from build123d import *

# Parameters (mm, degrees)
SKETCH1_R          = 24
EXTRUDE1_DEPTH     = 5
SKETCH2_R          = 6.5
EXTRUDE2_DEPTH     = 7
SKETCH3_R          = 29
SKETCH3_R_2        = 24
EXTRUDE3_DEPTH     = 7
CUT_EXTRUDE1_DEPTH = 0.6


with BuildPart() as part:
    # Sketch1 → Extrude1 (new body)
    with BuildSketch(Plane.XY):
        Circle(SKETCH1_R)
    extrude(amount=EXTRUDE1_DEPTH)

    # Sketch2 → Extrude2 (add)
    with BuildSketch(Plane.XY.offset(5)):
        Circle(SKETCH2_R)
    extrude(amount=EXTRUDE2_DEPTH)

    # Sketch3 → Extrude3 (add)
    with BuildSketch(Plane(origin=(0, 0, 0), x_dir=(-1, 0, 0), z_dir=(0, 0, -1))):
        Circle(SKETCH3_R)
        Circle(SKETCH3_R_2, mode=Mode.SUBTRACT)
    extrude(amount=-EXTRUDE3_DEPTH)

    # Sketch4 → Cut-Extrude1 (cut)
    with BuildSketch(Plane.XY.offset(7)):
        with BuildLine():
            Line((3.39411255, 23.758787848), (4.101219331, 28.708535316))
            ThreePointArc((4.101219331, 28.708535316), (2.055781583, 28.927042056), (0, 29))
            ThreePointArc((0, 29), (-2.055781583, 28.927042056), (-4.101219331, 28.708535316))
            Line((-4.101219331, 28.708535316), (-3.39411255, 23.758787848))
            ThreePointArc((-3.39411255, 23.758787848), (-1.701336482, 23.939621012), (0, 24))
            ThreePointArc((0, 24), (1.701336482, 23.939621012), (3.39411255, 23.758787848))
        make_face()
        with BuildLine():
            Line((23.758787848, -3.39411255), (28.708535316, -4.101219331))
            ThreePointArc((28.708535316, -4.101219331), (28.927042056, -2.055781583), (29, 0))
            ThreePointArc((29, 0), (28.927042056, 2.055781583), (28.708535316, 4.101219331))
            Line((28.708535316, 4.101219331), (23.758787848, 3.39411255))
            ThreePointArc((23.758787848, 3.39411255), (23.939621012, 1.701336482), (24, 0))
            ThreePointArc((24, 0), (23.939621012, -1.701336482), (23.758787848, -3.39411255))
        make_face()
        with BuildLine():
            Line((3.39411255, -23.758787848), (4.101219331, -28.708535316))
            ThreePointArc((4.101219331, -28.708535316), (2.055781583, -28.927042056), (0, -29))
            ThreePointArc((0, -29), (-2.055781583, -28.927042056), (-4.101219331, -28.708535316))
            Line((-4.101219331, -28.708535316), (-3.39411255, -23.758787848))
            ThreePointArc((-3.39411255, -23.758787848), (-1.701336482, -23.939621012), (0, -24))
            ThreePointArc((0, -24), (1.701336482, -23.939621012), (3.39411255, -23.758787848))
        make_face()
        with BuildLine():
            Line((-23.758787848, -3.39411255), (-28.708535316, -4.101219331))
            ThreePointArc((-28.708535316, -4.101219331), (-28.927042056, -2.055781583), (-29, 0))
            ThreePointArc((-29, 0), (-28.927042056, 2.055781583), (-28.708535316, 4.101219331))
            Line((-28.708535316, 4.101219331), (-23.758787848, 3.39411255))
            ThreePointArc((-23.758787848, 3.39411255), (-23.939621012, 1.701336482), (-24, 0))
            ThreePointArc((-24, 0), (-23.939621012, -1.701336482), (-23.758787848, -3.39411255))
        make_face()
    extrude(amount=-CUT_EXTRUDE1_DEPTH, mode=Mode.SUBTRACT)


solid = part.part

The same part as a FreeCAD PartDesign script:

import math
import FreeCAD as App
import Part
import Sketcher
Q = App.Units.Quantity

doc = App.newDocument("Part")
params = doc.addObject("Spreadsheet::Sheet", "Params")
for row, (alias, value) in enumerate([
    ("sketch1_diameter", "48 mm"),
    ("pad1_length", "5 mm"),
    ("sketch2_diameter", "13 mm"),
    ("pad2_length", "7 mm"),
    ("sketch3_diameter", "58 mm"),
    ("sketch3_diameter2", "48 mm"),
    ("pad3_length", "7 mm"),
    ("sketch4_radius", "29 mm"),
    ("sketch4_radius2", "24 mm"),
    ("pocket1_length", "0.6 mm"),
], start=1):
    params.set(f"A{row}", alias)
    params.set(f"B{row}", "=" + value)
    params.setAlias(f"B{row}", alias)

body = doc.addObject("PartDesign::Body", "Body")

# Sketch on XY plane
sketch1 = doc.addObject("Sketcher::SketchObject", "Sketch")
body.addObject(sketch1)
sketch1.AttachmentSupport = (doc.XY_Plane, [""])
sketch1.MapMode = "FlatFace"
sketch1.addGeometry(Part.Circle(App.Vector(0, 0, 0), App.Vector(0, 0, 1), 24), False)
sketch1.addConstraint([
    Sketcher.Constraint("Coincident", 0, 3, -1, 1),
    Sketcher.Constraint("Diameter", 0, Q("48 mm")),
])
sketch1.setExpression("Constraints[1]", "Params.sketch1_diameter")
pad1 = doc.addObject("PartDesign::Pad", "Pad")
body.addObject(pad1)
pad1.Profile = sketch1
pad1.setExpression("Length", "Params.pad1_length")

# Sketch on XY plane
sketch2 = doc.addObject("Sketcher::SketchObject", "Sketch001")
body.addObject(sketch2)
sketch2.AttachmentSupport = (doc.XY_Plane, [""])
sketch2.MapMode = "FlatFace"
sketch2.AttachmentOffset = App.Placement(App.Vector(0, 0, 5), App.Rotation())
sketch2.addGeometry(Part.Circle(App.Vector(0, 0, 0), App.Vector(0, 0, 1), 6.5), False)
sketch2.addConstraint([
    Sketcher.Constraint("Coincident", 0, 3, -1, 1),
    Sketcher.Constraint("Diameter", 0, Q("13 mm")),
])
sketch2.setExpression("Constraints[1]", "Params.sketch2_diameter")
pad2 = doc.addObject("PartDesign::Pad", "Pad001")
body.addObject(pad2)
pad2.Profile = sketch2
pad2.setExpression("Length", "Params.pad2_length")

# Sketch on XY plane
sketch3 = doc.addObject("Sketcher::SketchObject", "Sketch002")
body.addObject(sketch3)
sketch3.AttachmentSupport = (doc.XY_Plane, [""])
sketch3.MapMode = "FlatFace"
sketch3.addGeometry([
    Part.Circle(App.Vector(0, 0, 0), App.Vector(0, 0, 1), 29),
    Part.Circle(App.Vector(0, 0, 0), App.Vector(0, 0, 1), 24),
], False)
sketch3.addConstraint([
    Sketcher.Constraint("Coincident", 0, 3, -1, 1),
    Sketcher.Constraint("Coincident", 1, 3, -1, 1),
    Sketcher.Constraint("Diameter", 0, Q("58 mm")),
    Sketcher.Constraint("Diameter", 1, Q("48 mm")),
])
sketch3.setExpression("Constraints[2]", "Params.sketch3_diameter")
sketch3.setExpression("Constraints[3]", "Params.sketch3_diameter2")
pad3 = doc.addObject("PartDesign::Pad", "Pad002")
body.addObject(pad3)
pad3.Profile = sketch3
pad3.setExpression("Length", "Params.pad3_length")

# Sketch on XY plane
sketch4 = doc.addObject("Sketcher::SketchObject", "Sketch003")
body.addObject(sketch4)
sketch4.AttachmentSupport = (doc.XY_Plane, [""])
sketch4.MapMode = "FlatFace"
sketch4.AttachmentOffset = App.Placement(App.Vector(0, 0, 7), App.Rotation())
sketch4.addGeometry([
    Part.LineSegment(App.Vector(3.394113, 23.758788, 0), App.Vector(4.101219, 28.708535, 0)),  # 0
    Part.ArcOfCircle(Part.Circle(App.Vector(0, 0, 0), App.Vector(0, 0, 1), 29), math.radians(81.869898), math.radians(90)),  # 1
    Part.ArcOfCircle(Part.Circle(App.Vector(0, 0, 0), App.Vector(0, 0, 1), 29), math.radians(90), math.radians(98.130102)),  # 2
    Part.LineSegment(App.Vector(-4.101219, 28.708535, 0), App.Vector(-3.394113, 23.758788, 0)),  # 3
    Part.ArcOfCircle(Part.Circle(App.Vector(0, 0, 0), App.Vector(0, 0, 1), 24), math.radians(90), math.radians(98.130102)),  # 4
    Part.ArcOfCircle(Part.Circle(App.Vector(0, 0, 0), App.Vector(0, 0, 1), 24), math.radians(81.869898), math.radians(90)),  # 5
    Part.LineSegment(App.Vector(23.758788, -3.394113, 0), App.Vector(28.708535, -4.101219, 0)),  # 6
    Part.ArcOfCircle(Part.Circle(App.Vector(0, 0, 0), App.Vector(0, 0, 1), 29), math.radians(-8.130102), math.radians(0)),  # 7
    Part.ArcOfCircle(Part.Circle(App.Vector(0, 0, 0), App.Vector(0, 0, 1), 29), math.radians(0), math.radians(8.130102)),  # 8
    Part.LineSegment(App.Vector(28.708535, 4.101219, 0), App.Vector(23.758788, 3.394113, 0)),  # 9
    Part.ArcOfCircle(Part.Circle(App.Vector(0, 0, 0), App.Vector(0, 0, 1), 24), math.radians(0), math.radians(8.130102)),  # 10
    Part.ArcOfCircle(Part.Circle(App.Vector(0, 0, 0), App.Vector(0, 0, 1), 24), math.radians(-8.130102), math.radians(0)),  # 11
    Part.LineSegment(App.Vector(4.101219, -28.708535, 0), App.Vector(3.394113, -23.758788, 0)),  # 12
    Part.ArcOfCircle(Part.Circle(App.Vector(0, 0, 0), App.Vector(0, 0, 1), 24), math.radians(-90), math.radians(-81.869898)),  # 13
    Part.ArcOfCircle(Part.Circle(App.Vector(0, 0, 0), App.Vector(0, 0, 1), 24), math.radians(-98.130102), math.radians(-90)),  # 14
    Part.LineSegment(App.Vector(-3.394113, -23.758788, 0), App.Vector(-4.101219, -28.708535, 0)),  # 15
    Part.ArcOfCircle(Part.Circle(App.Vector(0, 0, 0), App.Vector(0, 0, 1), 29), math.radians(-98.130102), math.radians(-90)),  # 16
    Part.ArcOfCircle(Part.Circle(App.Vector(0, 0, 0), App.Vector(0, 0, 1), 29), math.radians(-90), math.radians(-81.869898)),  # 17
    Part.LineSegment(App.Vector(-28.708535, -4.101219, 0), App.Vector(-23.758788, -3.394113, 0)),  # 18
    Part.ArcOfCircle(Part.Circle(App.Vector(0, 0, 0), App.Vector(0, 0, 1), 24), math.radians(180), math.radians(188.130102)),  # 19
    Part.ArcOfCircle(Part.Circle(App.Vector(0, 0, 0), App.Vector(0, 0, 1), 24), math.radians(171.869898), math.radians(180)),  # 20
    Part.LineSegment(App.Vector(-23.758788, 3.394113, 0), App.Vector(-28.708535, 4.101219, 0)),  # 21
    Part.ArcOfCircle(Part.Circle(App.Vector(0, 0, 0), App.Vector(0, 0, 1), 29), math.radians(171.869898), math.radians(180)),  # 22
    Part.ArcOfCircle(Part.Circle(App.Vector(0, 0, 0), App.Vector(0, 0, 1), 29), math.radians(180), math.radians(188.130102)),  # 23
], False)
sketch4.addConstraint([
    Sketcher.Constraint("Coincident", 0, 2, 1, 1),
    Sketcher.Constraint("Tangent", 1, 2, 2, 1),
    Sketcher.Constraint("Coincident", 2, 2, 3, 1),
    Sketcher.Constraint("Coincident", 3, 2, 4, 2),
    Sketcher.Constraint("Tangent", 4, 1, 5, 2),
    Sketcher.Constraint("Coincident", 5, 1, 0, 1),
    Sketcher.Constraint("Coincident", 6, 2, 7, 1),
    Sketcher.Constraint("Tangent", 7, 2, 8, 1),
    Sketcher.Constraint("Coincident", 8, 2, 9, 1),
    Sketcher.Constraint("Coincident", 9, 2, 10, 2),
    Sketcher.Constraint("Tangent", 10, 1, 11, 2),
    Sketcher.Constraint("Coincident", 11, 1, 6, 1),
    Sketcher.Constraint("Coincident", 12, 2, 13, 2),
    Sketcher.Constraint("Tangent", 13, 1, 14, 2),
    Sketcher.Constraint("Coincident", 14, 1, 15, 1),
    Sketcher.Constraint("Coincident", 15, 2, 16, 1),
    Sketcher.Constraint("Tangent", 16, 2, 17, 1),
    Sketcher.Constraint("Coincident", 17, 2, 12, 1),
    Sketcher.Constraint("Coincident", 18, 2, 19, 2),
    Sketcher.Constraint("Tangent", 19, 1, 20, 2),
    Sketcher.Constraint("Coincident", 20, 1, 21, 1),
    Sketcher.Constraint("Coincident", 21, 2, 22, 1),
    Sketcher.Constraint("Tangent", 22, 2, 23, 1),
    Sketcher.Constraint("Coincident", 23, 2, 18, 1),
    Sketcher.Constraint("Coincident", 1, 3, -1, 1),
    Sketcher.Constraint("Coincident", 4, 3, -1, 1),
    Sketcher.Constraint("Coincident", 7, 3, -1, 1),
    Sketcher.Constraint("Coincident", 10, 3, -1, 1),
    Sketcher.Constraint("Coincident", 13, 3, -1, 1),
    Sketcher.Constraint("Coincident", 16, 3, -1, 1),
    Sketcher.Constraint("Coincident", 19, 3, -1, 1),
    Sketcher.Constraint("Coincident", 22, 3, -1, 1),
    Sketcher.Constraint("Equal", 1, 2),
    Sketcher.Constraint("Equal", 4, 5),
    Sketcher.Constraint("Equal", 2, 7),
    Sketcher.Constraint("Equal", 7, 8),
    Sketcher.Constraint("Equal", 5, 10),
    Sketcher.Constraint("Equal", 10, 11),
    Sketcher.Constraint("Equal", 11, 13),
    Sketcher.Constraint("Equal", 13, 14),
    Sketcher.Constraint("Equal", 8, 16),
    Sketcher.Constraint("Equal", 16, 17),
    Sketcher.Constraint("Equal", 14, 19),
    Sketcher.Constraint("Equal", 19, 20),
    Sketcher.Constraint("Equal", 17, 22),
    Sketcher.Constraint("Equal", 22, 23),
    Sketcher.Constraint("PointOnObject", 1, 2, -2),
    Sketcher.Constraint("PointOnObject", 4, 1, -2),
    Sketcher.Constraint("PointOnObject", 7, 2, -1),
    Sketcher.Constraint("PointOnObject", 10, 1, -1),
    Sketcher.Constraint("PointOnObject", 13, 1, -2),
    Sketcher.Constraint("PointOnObject", 16, 2, -2),
    Sketcher.Constraint("PointOnObject", 19, 1, -1),
    Sketcher.Constraint("PointOnObject", 22, 2, -1),
    Sketcher.Constraint("Perpendicular", 0, 6),
    Sketcher.Constraint("Perpendicular", 3, 9),
    Sketcher.Constraint("Perpendicular", 9, 12),
    Sketcher.Constraint("Perpendicular", 6, 15),
    Sketcher.Constraint("Perpendicular", 12, 18),
    Sketcher.Constraint("Perpendicular", 15, 21),
    Sketcher.Constraint("Horizontal", 0, 2, 2, 2),
    Sketcher.Constraint("Horizontal", 3, 2, 5, 1),
    Sketcher.Constraint("Horizontal", 12, 2, 14, 1),
    Sketcher.Constraint("Horizontal", 11, 1, 18, 2),
    Sketcher.Constraint("Horizontal", 9, 2, 20, 1),
    Sketcher.Constraint("Vertical", 6, 2, 8, 2),
    Sketcher.Constraint("Vertical", 5, 1, 12, 2),
    Sketcher.Constraint("Radius", 1, Q("29 mm")),
    Sketcher.Constraint("Radius", 4, Q("24 mm")),
    Sketcher.Constraint("DistanceX", -1, 1, 0, 2, Q("4.101219 mm")),
    Sketcher.Constraint("DistanceY", 6, 2, -1, 1, Q("4.101219 mm")),
    Sketcher.Constraint("DistanceX", 3, 2, 0, 2, Q("7.495332 mm")),
])
sketch4.setExpression("Constraints[67]", "Params.sketch4_radius")
sketch4.setExpression("Constraints[68]", "Params.sketch4_radius2")
pocket1 = doc.addObject("PartDesign::Pocket", "Pocket")
body.addObject(pocket1)
pocket1.Profile = sketch4
pocket1.setExpression("Length", "Params.pocket1_length")

doc.recompute()
